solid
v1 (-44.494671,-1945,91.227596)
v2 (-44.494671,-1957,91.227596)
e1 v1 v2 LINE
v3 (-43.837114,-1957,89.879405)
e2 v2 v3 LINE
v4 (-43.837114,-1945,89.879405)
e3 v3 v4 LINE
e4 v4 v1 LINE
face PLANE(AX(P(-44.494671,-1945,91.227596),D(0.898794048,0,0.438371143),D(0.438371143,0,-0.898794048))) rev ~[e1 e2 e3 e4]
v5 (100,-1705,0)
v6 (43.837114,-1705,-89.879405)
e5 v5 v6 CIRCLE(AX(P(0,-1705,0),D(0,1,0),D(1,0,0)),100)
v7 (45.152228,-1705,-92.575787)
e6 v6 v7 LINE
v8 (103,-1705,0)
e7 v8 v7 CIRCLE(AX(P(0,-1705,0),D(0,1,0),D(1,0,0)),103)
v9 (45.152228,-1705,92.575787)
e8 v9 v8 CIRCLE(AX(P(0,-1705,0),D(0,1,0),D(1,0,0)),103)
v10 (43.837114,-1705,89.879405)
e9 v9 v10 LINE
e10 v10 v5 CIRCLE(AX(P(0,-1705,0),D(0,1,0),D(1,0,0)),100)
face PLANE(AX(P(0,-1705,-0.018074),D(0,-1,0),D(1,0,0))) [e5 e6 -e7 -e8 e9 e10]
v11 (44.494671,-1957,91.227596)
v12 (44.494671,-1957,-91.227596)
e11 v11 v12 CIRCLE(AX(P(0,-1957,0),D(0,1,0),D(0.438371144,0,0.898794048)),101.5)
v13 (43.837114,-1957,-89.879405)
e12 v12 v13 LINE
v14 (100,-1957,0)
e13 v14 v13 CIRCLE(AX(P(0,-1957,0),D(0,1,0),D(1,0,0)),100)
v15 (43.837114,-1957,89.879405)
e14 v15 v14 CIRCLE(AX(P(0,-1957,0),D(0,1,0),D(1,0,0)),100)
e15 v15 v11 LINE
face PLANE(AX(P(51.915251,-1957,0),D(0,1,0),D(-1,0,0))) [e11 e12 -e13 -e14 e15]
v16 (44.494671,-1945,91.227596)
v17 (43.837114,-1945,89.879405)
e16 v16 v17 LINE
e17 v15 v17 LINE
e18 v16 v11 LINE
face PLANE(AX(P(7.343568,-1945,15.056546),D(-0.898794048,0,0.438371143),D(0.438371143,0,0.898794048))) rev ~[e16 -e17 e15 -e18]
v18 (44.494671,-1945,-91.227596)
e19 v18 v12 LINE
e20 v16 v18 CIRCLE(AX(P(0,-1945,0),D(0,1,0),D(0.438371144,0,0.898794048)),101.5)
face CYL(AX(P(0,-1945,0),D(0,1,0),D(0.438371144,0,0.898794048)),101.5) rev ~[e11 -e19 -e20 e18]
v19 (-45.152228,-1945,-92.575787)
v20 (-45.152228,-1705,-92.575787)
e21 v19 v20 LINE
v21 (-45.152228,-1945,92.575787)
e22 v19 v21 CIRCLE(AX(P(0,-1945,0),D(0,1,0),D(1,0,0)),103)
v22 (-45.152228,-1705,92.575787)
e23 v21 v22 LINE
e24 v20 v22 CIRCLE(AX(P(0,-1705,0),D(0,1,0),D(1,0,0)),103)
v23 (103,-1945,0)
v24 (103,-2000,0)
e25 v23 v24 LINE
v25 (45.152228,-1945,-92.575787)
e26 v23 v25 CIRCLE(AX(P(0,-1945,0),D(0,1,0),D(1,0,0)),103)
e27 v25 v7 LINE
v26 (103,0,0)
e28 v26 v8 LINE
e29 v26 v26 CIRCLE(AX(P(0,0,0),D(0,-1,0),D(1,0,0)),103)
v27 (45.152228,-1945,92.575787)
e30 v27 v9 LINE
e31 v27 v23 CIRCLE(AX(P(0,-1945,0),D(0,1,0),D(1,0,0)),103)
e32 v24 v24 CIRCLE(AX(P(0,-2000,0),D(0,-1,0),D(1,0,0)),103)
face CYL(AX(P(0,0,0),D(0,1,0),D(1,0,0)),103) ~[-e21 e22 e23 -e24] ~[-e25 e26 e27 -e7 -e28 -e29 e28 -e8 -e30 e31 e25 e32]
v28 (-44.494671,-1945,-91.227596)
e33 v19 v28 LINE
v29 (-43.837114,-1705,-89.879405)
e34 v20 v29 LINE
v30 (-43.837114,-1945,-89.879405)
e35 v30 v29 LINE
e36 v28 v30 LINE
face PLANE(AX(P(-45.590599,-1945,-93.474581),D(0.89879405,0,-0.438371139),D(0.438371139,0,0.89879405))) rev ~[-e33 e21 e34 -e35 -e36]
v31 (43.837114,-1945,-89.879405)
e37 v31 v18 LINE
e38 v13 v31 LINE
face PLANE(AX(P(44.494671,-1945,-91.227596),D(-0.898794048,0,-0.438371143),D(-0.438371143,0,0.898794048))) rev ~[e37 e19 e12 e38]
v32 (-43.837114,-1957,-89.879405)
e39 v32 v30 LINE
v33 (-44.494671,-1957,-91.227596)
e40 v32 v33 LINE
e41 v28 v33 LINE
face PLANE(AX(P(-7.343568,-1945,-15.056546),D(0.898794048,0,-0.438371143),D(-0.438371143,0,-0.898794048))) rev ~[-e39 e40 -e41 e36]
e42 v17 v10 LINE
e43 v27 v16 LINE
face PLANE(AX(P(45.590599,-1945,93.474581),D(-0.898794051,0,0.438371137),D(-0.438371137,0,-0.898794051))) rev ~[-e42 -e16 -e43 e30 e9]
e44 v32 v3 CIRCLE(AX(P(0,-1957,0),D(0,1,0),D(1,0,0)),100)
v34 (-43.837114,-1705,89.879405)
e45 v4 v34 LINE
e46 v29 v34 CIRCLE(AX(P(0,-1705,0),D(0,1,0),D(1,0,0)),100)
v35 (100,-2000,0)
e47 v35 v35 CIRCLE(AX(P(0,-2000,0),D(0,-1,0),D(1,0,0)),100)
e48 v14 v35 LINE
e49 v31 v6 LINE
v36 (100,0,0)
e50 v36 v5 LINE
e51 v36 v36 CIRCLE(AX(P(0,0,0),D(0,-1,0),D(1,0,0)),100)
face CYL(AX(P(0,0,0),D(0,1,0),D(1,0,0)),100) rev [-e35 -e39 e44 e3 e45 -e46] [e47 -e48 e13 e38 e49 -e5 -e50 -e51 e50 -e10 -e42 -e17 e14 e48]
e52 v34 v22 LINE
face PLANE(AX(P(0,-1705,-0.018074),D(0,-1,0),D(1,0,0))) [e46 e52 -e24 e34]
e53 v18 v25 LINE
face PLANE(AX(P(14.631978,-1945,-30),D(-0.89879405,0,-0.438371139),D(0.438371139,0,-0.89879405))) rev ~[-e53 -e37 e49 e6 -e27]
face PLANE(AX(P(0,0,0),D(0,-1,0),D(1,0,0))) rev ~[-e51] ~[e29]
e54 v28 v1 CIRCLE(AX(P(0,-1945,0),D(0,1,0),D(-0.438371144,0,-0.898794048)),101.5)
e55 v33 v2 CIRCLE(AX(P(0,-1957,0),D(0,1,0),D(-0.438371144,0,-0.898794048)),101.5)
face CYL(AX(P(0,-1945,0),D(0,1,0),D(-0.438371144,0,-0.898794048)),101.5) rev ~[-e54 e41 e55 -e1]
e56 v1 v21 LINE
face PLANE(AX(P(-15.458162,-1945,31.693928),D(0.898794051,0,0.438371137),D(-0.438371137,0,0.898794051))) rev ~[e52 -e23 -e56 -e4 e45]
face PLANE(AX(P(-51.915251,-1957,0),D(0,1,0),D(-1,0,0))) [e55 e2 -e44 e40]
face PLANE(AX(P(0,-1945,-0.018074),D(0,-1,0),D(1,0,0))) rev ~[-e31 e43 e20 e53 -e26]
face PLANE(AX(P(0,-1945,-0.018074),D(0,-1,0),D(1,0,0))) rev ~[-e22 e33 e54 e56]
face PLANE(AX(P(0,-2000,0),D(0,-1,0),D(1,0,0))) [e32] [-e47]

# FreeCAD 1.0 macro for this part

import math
import FreeCAD as App
import Part
import Sketcher

V = App.Vector
Q = App.Units.Quantity

doc = App.newDocument("Part")
params = doc.addObject("Spreadsheet::Sheet", "Params")
for row, (alias, value) in enumerate([
    ("sketch1_diameter", "206 mm"),
    ("sketch1_diameter2", "200 mm"),
    ("pad1_length", "2000 mm"),
    ("sketch2_radius", "104 mm"),
    ("pocket1_length", "240 mm"),
    ("sketch3_radius", "101.5 mm"),
    ("pocket2_length", "12 mm"),
], start=1):
    params.set(f"A{row}", alias)
    params.set(f"B{row}", "=" + value)
    params.setAlias(f"B{row}", alias)

body = doc.addObject("PartDesign::Body", "Body")

# Sketch on XZ plane
sketch1 = doc.addObject("Sketcher::SketchObject", "Sketch")
body.addObject(sketch1)
sketch1.AttachmentSupport = (doc.XZ_Plane, [""])
sketch1.MapMode = "FlatFace"
sketch1.addGeometry([
    Part.Circle(V(0, 0, 0), V(0, 0, 1), 103),
    Part.Circle(V(0, 0, 0), V(0, 0, 1), 100),
], False)
sketch1.addConstraint([
    Sketcher.Constraint("Coincident", 0, 3, -1, 1),
    Sketcher.Constraint("Coincident", 1, 3, -1, 1),
    Sketcher.Constraint("Diameter", 0, 206.0),
    Sketcher.Constraint("Diameter", 1, 200.0),
])
sketch1.setExpression("Constraints[2]", "Params.sketch1_diameter")
sketch1.setExpression("Constraints[3]", "Params.sketch1_diameter2")
pad1 = doc.addObject("PartDesign::Pad", "Pad")
body.addObject(pad1)
pad1.Profile = sketch1
pad1.setExpression("Length", "Params.pad1_length")

# Sketch on XZ plane
sketch2 = doc.addObject("Sketcher::SketchObject", "Sketch001")
body.addObject(sketch2)
sketch2.AttachmentSupport = (doc.XZ_Plane, [""])
sketch2.MapMode = "FlatFace"
sketch2.AttachmentOffset = App.Placement(V(0, 0, 1945), App.Rotation())
sketch2.addGeometry([
    Part.LineSegment(V(14.631978, -30, 0), V(45.590599, -93.474581, 0)),  # 0
    Part.ArcOfCircle(Part.Circle(V(0, 0, 0), V(0, 0, 1), 104), math.radians(-64), math.radians(64)),  # 1
    Part.LineSegment(V(45.590599, 93.474581, 0), V(15.458162, 31.693928, 0)),  # 2
    Part.LineSegment(V(15.458162, 31.693928, 0), V(-15.458162, 31.693928, 0)),  # 3
    Part.LineSegment(V(-15.458162, 31.693928, 0), V(-45.590599, 93.474581, 0)),  # 4
    Part.ArcOfCircle(Part.Circle(V(0, 0, 0), V(0, 0, 1), 104), math.radians(116), math.radians(244)),  # 5
    Part.LineSegment(V(-45.590599, -93.474581, 0), V(-14.631978, -30, 0)),  # 6
    Part.LineSegment(V(-14.631978, -30, 0), V(14.631978, -30, 0)),  # 7
], False)
sketch2.addConstraint([
    Sketcher.Constraint("Coincident", 0, 2, 1, 1),
    Sketcher.Constraint("Coincident", 1, 2, 2, 1),
    Sketcher.Constraint("Coincident", 2, 2, 3, 1),
    Sketcher.Constraint("Coincident", 3, 2, 4, 1),
    Sketcher.Constraint("Coincident", 4, 2, 5, 1),
    Sketcher.Constraint("Coincident", 5, 2, 6, 1),
    Sketcher.Constraint("Coincident", 6, 2, 7, 1),
    Sketcher.Constraint("Coincident", 7, 2, 0, 1),
    Sketcher.Constraint("Horizontal", 3),
    Sketcher.Constraint("Horizontal", 7),
    Sketcher.Constraint("Coincident", 1, 3, -1, 1),
    Sketcher.Constraint("Coincident", 5, 3, -1, 1),
    Sketcher.Constraint("Equal", 1, 5),
    Sketcher.Constraint("Parallel", 0, 4),
    Sketcher.Constraint("Parallel", 2, 6),
    Sketcher.Constraint("Horizontal", 1, 2, 4, 2),
    Sketcher.Constraint("Horizontal", 0, 2, 5, 2),
    Sketcher.Constraint("Vertical", 0, 2, 1, 2),
    Sketcher.Constraint("Equal", 2, 4),
    Sketcher.Constraint("Radius", 1, 104.0),
    Sketcher.Constraint("Angle", 0, Q("-64.000001 deg")),
    Sketcher.Constraint("DistanceY", 6, 2, -1, 1, 30.0),
    Sketcher.Constraint("DistanceX", -1, 1, 0, 2, 45.590599),
    Sketcher.Constraint("DistanceX", 3, 2, 3, 1, 30.916324),
])
sketch2.setExpression("Constraints[19]", "Params.sketch2_radius")
pocket1 = doc.addObject("PartDesign::Pocket", "Pocket")
body.addObject(pocket1)
pocket1.Profile = sketch2
pocket1.setExpression("Length", "Params.pocket1_length")

# Sketch on XZ plane
sketch3 = doc.addObject("Sketcher::SketchObject", "Sketch002")
body.addObject(sketch3)
sketch3.AttachmentSupport = (doc.XZ_Plane, [""])
sketch3.MapMode = "FlatFace"
sketch3.AttachmentOffset = App.Placement(V(0, 0, 1945), App.Rotation())
sketch3.addGeometry([
    Part.LineSegment(V(44.494671, -91.227596, 0), V(7.343568, -15.056546, 0)),  # 0
    Part.LineSegment(V(7.343568, -15.056546, 0), V(7.343568, 15.056546, 0)),  # 1
    Part.LineSegment(V(7.343568, 15.056546, 0), V(44.494671, 91.227596, 0)),  # 2
    Part.ArcOfCircle(Part.Circle(V(0, 0, 0), V(0, 0, 1), 101.5), math.radians(-64), math.radians(64)),  # 3
    Part.LineSegment(V(-7.343568, 15.056546, 0), V(-7.343568, -15.056546, 0)),  # 4
    Part.LineSegment(V(-7.343568, -15.056546, 0), V(-44.494671, -91.227596, 0)),  # 5
    Part.ArcOfCircle(Part.Circle(V(0, 0, 0), V(0, 0, 1), 101.5), math.radians(116), math.radians(244)),  # 6
    Part.LineSegment(V(-44.494671, 91.227596, 0), V(-7.343568, 15.056546, 0)),  # 7
], False)
sketch3.addConstraint([
    Sketcher.Constraint("Coincident", 0, 2, 1, 1),
    Sketcher.Constraint("Coincident", 1, 2, 2, 1),
    Sketcher.Constraint("Coincident", 2, 2, 3, 2),
    Sketcher.Constraint("Coincident", 3, 1, 0, 1),
    Sketcher.Constraint("Coincident", 4, 2, 5, 1),
    Sketcher.Constraint("Coincident", 5, 2, 6, 2),
    Sketcher.Constraint("Coincident", 6, 1, 7, 1),
    Sketcher.Constraint("Coincident", 7, 2, 4, 1),
    Sketcher.Constraint("Vertical", 1),
    Sketcher.Constraint("Vertical", 4),
    Sketcher.Constraint("Coincident", 3, 3, -1, 1),
    Sketcher.Constraint("Coincident", 6, 3, -1, 1),
    Sketcher.Constraint("Equal", 3, 6),
    Sketcher.Constraint("Symmetric", 1, 2, 4, 2, -1, 1),
    Sketcher.Constraint("Parallel", 2, 5),
    Sketcher.Constraint("Parallel", 0, 7),
    Sketcher.Constraint("Horizontal", 0, 2, 4, 2),
    Sketcher.Constraint("Horizontal", 3, 1, 5, 2),
    Sketcher.Constraint("Horizontal", 2, 2, 6, 1),
    Sketcher.Constraint("Radius", 3, 101.5),
    Sketcher.Constraint("Angle", 0, Q("116 deg")),
    Sketcher.Constraint("DistanceY", 1, 1, 1, 2, 30.113092),
    Sketcher.Constraint("DistanceX", -1, 1, 0, 2, 7.343568),
])
sketch3.setExpression("Constraints[19]", "Params.sketch3_radius")
pocket2 = doc.addObject("PartDesign::Pocket", "Pocket001")
body.addObject(pocket2)
pocket2.Profile = sketch3
pocket2.setExpression("Length", "Params.pocket2_length")
pocket2.Reversed = True

doc.recompute()
